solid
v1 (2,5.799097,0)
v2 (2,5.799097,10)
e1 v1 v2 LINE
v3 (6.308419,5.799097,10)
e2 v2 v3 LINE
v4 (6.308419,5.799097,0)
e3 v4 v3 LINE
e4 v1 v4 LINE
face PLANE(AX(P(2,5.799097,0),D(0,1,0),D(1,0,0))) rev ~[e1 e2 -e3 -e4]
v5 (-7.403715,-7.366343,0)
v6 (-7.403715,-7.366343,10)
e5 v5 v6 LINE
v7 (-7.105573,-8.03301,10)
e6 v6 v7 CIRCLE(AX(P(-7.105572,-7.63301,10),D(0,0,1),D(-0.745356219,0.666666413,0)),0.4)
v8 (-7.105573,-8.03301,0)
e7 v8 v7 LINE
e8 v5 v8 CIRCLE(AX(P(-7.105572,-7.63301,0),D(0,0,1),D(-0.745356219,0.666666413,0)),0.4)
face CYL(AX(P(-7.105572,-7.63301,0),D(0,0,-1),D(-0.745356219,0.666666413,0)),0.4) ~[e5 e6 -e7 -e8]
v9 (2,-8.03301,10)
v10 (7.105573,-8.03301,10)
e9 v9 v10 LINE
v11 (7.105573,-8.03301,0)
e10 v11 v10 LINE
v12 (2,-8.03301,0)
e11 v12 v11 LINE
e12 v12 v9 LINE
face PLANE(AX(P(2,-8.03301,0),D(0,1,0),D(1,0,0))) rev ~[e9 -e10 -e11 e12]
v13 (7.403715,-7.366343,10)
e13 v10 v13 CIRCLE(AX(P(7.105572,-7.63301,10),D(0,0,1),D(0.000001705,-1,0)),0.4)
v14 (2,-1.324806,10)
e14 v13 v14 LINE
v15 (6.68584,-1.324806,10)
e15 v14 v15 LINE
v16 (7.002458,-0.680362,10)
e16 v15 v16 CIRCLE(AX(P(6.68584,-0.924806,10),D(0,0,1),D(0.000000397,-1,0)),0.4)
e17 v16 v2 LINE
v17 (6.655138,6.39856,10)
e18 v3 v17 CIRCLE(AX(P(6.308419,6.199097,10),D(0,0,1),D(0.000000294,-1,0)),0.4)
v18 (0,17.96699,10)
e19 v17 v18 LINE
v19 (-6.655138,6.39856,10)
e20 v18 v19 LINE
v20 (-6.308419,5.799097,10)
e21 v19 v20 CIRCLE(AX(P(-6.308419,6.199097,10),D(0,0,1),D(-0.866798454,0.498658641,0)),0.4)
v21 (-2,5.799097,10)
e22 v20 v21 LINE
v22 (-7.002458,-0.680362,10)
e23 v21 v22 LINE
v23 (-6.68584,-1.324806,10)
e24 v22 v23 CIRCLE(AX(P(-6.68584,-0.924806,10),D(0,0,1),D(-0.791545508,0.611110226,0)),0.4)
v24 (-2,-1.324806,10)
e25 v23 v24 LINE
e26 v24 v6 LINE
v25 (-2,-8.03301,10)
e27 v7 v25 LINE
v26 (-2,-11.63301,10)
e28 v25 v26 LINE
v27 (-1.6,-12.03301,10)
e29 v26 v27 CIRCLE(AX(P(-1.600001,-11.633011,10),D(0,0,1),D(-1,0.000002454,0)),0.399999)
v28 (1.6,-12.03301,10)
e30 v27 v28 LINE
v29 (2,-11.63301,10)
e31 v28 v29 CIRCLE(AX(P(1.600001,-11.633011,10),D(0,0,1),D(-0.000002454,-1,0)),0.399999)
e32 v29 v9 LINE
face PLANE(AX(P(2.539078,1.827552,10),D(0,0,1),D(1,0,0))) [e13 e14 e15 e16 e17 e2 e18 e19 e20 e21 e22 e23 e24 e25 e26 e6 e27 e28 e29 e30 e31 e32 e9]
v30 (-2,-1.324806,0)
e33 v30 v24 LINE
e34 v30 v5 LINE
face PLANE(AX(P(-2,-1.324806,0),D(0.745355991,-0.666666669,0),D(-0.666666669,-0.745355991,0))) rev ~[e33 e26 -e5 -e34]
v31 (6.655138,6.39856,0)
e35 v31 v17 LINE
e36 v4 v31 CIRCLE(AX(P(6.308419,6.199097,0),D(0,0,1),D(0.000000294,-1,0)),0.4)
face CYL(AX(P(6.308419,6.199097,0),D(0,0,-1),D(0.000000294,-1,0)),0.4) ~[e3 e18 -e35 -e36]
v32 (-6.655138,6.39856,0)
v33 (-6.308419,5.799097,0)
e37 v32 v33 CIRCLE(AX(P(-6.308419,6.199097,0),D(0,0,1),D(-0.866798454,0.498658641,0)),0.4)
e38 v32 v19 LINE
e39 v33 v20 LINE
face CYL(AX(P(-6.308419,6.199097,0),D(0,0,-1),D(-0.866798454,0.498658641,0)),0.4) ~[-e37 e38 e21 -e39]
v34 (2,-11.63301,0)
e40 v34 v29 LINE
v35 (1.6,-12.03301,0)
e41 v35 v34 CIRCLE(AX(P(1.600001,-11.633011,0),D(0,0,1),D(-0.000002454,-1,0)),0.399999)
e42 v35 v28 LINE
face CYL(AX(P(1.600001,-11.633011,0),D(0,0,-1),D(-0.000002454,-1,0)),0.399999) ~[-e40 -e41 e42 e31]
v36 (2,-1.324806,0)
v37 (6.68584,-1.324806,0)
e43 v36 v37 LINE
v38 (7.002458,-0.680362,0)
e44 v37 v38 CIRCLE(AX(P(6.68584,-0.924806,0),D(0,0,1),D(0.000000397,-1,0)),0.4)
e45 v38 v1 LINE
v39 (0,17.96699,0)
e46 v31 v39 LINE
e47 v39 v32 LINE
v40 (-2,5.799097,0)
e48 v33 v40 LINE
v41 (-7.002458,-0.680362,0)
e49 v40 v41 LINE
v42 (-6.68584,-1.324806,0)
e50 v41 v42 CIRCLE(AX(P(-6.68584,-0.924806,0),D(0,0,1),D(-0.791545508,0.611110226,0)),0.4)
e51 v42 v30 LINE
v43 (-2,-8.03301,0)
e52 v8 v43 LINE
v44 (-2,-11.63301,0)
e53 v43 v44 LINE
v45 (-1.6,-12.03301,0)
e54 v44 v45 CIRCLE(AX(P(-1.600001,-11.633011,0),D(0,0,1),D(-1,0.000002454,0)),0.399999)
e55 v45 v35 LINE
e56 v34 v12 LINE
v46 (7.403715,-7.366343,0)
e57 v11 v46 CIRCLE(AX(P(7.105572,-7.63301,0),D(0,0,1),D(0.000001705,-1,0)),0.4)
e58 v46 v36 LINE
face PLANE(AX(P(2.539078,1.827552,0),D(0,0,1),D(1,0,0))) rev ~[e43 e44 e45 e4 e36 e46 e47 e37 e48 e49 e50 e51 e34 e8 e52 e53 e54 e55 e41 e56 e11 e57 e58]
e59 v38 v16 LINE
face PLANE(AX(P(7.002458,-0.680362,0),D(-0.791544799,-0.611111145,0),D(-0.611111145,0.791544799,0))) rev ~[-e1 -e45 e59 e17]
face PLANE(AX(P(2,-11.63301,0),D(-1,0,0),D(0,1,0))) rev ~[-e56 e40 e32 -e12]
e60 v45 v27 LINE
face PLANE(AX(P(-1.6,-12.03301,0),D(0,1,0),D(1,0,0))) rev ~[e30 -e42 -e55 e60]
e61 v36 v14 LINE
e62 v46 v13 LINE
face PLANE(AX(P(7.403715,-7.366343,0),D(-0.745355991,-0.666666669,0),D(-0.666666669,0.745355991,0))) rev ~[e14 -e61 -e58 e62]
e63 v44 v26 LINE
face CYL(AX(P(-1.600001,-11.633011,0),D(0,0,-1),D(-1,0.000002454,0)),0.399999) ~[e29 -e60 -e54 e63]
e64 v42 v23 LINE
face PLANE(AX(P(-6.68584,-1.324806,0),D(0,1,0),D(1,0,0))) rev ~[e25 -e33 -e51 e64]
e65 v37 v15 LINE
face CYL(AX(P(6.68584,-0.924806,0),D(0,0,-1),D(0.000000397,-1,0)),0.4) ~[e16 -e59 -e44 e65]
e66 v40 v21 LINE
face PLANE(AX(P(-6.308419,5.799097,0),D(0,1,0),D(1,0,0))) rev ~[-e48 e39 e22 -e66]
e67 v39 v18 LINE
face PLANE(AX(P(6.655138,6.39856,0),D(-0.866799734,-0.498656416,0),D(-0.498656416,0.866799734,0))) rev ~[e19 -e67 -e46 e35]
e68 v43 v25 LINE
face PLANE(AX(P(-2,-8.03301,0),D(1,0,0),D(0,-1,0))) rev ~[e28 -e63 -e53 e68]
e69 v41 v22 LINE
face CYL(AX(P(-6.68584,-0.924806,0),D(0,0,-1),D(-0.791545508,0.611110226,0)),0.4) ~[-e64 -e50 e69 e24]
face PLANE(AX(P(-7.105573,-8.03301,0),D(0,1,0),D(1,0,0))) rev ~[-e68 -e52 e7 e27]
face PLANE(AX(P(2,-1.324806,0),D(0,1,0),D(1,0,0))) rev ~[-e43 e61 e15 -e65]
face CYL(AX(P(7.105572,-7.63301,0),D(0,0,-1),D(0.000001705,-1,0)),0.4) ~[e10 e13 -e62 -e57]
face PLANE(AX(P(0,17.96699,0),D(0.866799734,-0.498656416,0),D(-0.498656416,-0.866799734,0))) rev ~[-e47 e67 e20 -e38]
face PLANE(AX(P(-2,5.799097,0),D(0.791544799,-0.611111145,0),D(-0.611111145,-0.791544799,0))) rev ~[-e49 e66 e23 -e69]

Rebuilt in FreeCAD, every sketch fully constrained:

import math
import FreeCAD as App
import Part
import Sketcher
from FreeCAD import Vector
Q = App.Units.Quantity

doc = App.newDocument("Part")
body = doc.addObject("PartDesign::Body", "Body")

# Sketch on XY plane
sketch1 = body.newObject("Sketcher::SketchObject", "Sketch")
sketch1.AttachmentSupport = (doc.getObject("XY_Plane"), [""])
sketch1.MapMode = "FlatFace"
sketch1.addGeometry(Part.LineSegment(Vector(6.66, 6.4, 0), Vector(0, 17.97, 0)), False)
sketch1.addGeometry(Part.LineSegment(Vector(0, 17.97, 0), Vector(-6.66, 6.4, 0)), False)
sketch1.addGeometry(Part.ArcOfCircle(Part.Circle(Vector(-6.31, 6.2, 0), Vector(0, 0, 1), 0.4), math.radians(150), math.radians(270)), False)
sketch1.addGeometry(Part.LineSegment(Vector(-6.31, 5.8, 0), Vector(-2, 5.8, 0)), False)
sketch1.addGeometry(Part.LineSegment(Vector(-2, 5.8, 0), Vector(-7, -0.68, 0)), False)
sketch1.addGeometry(Part.ArcOfCircle(Part.Circle(Vector(-6.69, -0.92, 0), Vector(0, 0, 1), 0.4), math.radians(142), math.radians(270)), False)
sketch1.addGeometry(Part.LineSegment(Vector(-6.69, -1.32, 0), Vector(-2, -1.32, 0)), False)
sketch1.addGeometry(Part.LineSegment(Vector(-2, -1.32, 0), Vector(-7.4, -7.37, 0)), False)
sketch1.addGeometry(Part.ArcOfCircle(Part.Circle(Vector(-7.11, -7.63, 0), Vector(0, 0, 1), 0.4), math.radians(138), math.radians(270)), False)
sketch1.addGeometry(Part.LineSegment(Vector(-7.11, -8.03, 0), Vector(-2, -8.03, 0)), False)
sketch1.addGeometry(Part.LineSegment(Vector(-2, -8.03, 0), Vector(-2, -11.63, 0)), False)
sketch1.addGeometry(Part.ArcOfCircle(Part.Circle(Vector(-1.6, -11.63, 0), Vector(0, 0, 1), 0.4), math.radians(180), math.radians(270)), False)
sketch1.addGeometry(Part.LineSegment(Vector(-1.6, -12.03, 0), Vector(1.6, -12.03, 0)), False)
sketch1.addGeometry(Part.ArcOfCircle(Part.Circle(Vector(1.6, -11.63, 0), Vector(0, 0, 1), 0.4), math.radians(-90), math.radians(0)), False)
sketch1.addGeometry(Part.LineSegment(Vector(2, -11.63, 0), Vector(2, -8.03, 0)), False)
sketch1.addGeometry(Part.LineSegment(Vector(2, -8.03, 0), Vector(7.11, -8.03, 0)), False)
sketch1.addGeometry(Part.ArcOfCircle(Part.Circle(Vector(7.11, -7.63, 0), Vector(0, 0, 1), 0.4), math.radians(-90), math.radians(42)), False)
sketch1.addGeometry(Part.LineSegment(Vector(7.4, -7.37, 0), Vector(2, -1.32, 0)), False)
sketch1.addGeometry(Part.LineSegment(Vector(2, -1.32, 0), Vector(6.69, -1.32, 0)), False)
sketch1.addGeometry(Part.ArcOfCircle(Part.Circle(Vector(6.69, -0.92, 0), Vector(0, 0, 1), 0.4), math.radians(-90), math.radians(38)), False)
sketch1.addGeometry(Part.LineSegment(Vector(7, -0.68, 0), Vector(2, 5.8, 0)), False)
sketch1.addGeometry(Part.LineSegment(Vector(2, 5.8, 0), Vector(6.31, 5.8, 0)), False)
sketch1.addGeometry(Part.ArcOfCircle(Part.Circle(Vector(6.31, 6.2, 0), Vector(0, 0, 1), 0.4), math.radians(-90), math.radians(30)), False)
sketch1.addConstraint(Sketcher.Constraint("Coincident", 0, 2, 1, 1))
sketch1.addConstraint(Sketcher.Constraint("Coincident", 1, 2, 2, 1))
sketch1.addConstraint(Sketcher.Constraint("Tangent", 2, 2, 3, 1))
sketch1.addConstraint(Sketcher.Constraint("Coincident", 3, 2, 4, 1))
sketch1.addConstraint(Sketcher.Constraint("Tangent", 4, 2, 5, 1))
sketch1.addConstraint(Sketcher.Constraint("Tangent", 5, 2, 6, 1))
sketch1.addConstraint(Sketcher.Constraint("Coincident", 6, 2, 7, 1))
sketch1.addConstraint(Sketcher.Constraint("Tangent", 7, 2, 8, 1))
sketch1.addConstraint(Sketcher.Constraint("Tangent", 8, 2, 9, 1))
sketch1.addConstraint(Sketcher.Constraint("Coincident", 9, 2, 10, 1))
sketch1.addConstraint(Sketcher.Constraint("Coincident", 10, 2, 11, 1))
sketch1.addConstraint(Sketcher.Constraint("Coincident", 11, 2, 12, 1))
sketch1.addConstraint(Sketcher.Constraint("Coincident", 12, 2, 13, 1))
sketch1.addConstraint(Sketcher.Constraint("Coincident", 13, 2, 14, 1))
sketch1.addConstraint(Sketcher.Constraint("Coincident", 14, 2, 15, 1))
sketch1.addConstraint(Sketcher.Constraint("Tangent", 15, 2, 16, 1))
sketch1.addConstraint(Sketcher.Constraint("Tangent", 16, 2, 17, 1))
sketch1.addConstraint(Sketcher.Constraint("Coincident", 17, 2, 18, 1))
sketch1.addConstraint(Sketcher.Constraint("Tangent", 18, 2, 19, 1))
sketch1.addConstraint(Sketcher.Constraint("Tangent", 19, 2, 20, 1))
sketch1.addConstraint(Sketcher.Constraint("Coincident", 20, 2, 21, 1))
sketch1.addConstraint(Sketcher.Constraint("Tangent", 21, 2, 22, 1))
sketch1.addConstraint(Sketcher.Constraint("Coincident", 22, 2, 0, 1))
sketch1.addConstraint(Sketcher.Constraint("Horizontal", 3))
sketch1.addConstraint(Sketcher.Constraint("Horizontal", 6))
sketch1.addConstraint(Sketcher.Constraint("Horizontal", 9))
sketch1.addConstraint(Sketcher.Constraint("Vertical", 10))
sketch1.addConstraint(Sketcher.Constraint("Horizontal", 12))
sketch1.addConstraint(Sketcher.Constraint("Vertical", 14))
sketch1.addConstraint(Sketcher.Constraint("Horizontal", 15))
sketch1.addConstraint(Sketcher.Constraint("Horizontal", 18))
sketch1.addConstraint(Sketcher.Constraint("Horizontal", 21))
sketch1.addConstraint(Sketcher.Constraint("Equal", 2, 5))
sketch1.addConstraint(Sketcher.Constraint("Equal", 5, 8))
sketch1.addConstraint(Sketcher.Constraint("Equal", 8, 11))
sketch1.addConstraint(Sketcher.Constraint("Equal", 11, 13))
sketch1.addConstraint(Sketcher.Constraint("Equal", 13, 16))
sketch1.addConstraint(Sketcher.Constraint("Equal", 16, 19))
sketch1.addConstraint(Sketcher.Constraint("Equal", 19, 22))
sketch1.addConstraint(Sketcher.Constraint("Symmetric", 8, 3, 16, 3, -2))
sketch1.addConstraint(Sketcher.Constraint("Symmetric", 5, 3, 19, 3, -2))
sketch1.addConstraint(Sketcher.Constraint("Symmetric", 2, 3, 22, 3, -2))
sketch1.addConstraint(Sketcher.Constraint("Symmetric", 10, 2, 13, 2, -2))
sketch1.addConstraint(Sketcher.Constraint("PointOnObject", 0, 2, -2))
sketch1.addConstraint(Sketcher.Constraint("Horizontal", 13, 3, 10, 2))
sketch1.addConstraint(Sketcher.Constraint("Horizontal", 7, 2, 16, 2))
sketch1.addConstraint(Sketcher.Constraint("Horizontal", 4, 2, 19, 2))
sketch1.addConstraint(Sketcher.Constraint("Horizontal", 1, 2, 22, 2))
sketch1.addConstraint(Sketcher.Constraint("Vertical", 3, 2, 6, 2))
sketch1.addConstraint(Sketcher.Constraint("Vertical", 6, 2, 9, 2))
sketch1.addConstraint(Sketcher.Constraint("Vertical", 13, 3, 12, 2))
sketch1.addConstraint(Sketcher.Constraint("Radius", 2, Q("0.4 mm")))
sketch1.addConstraint(Sketcher.Constraint("DistanceX", 12, 1, 12, 2, Q("3.2 mm")))
sketch1.addConstraint(Sketcher.Constraint("DistanceY", 10, 2, 10, 1, Q("3.6 mm")))
sketch1.addConstraint(Sketcher.Constraint("DistanceX", 3, 2, -1, 1, Q("2 mm")))
sketch1.addConstraint(Sketcher.Constraint("DistanceY", 8, 3, 0, 2, Q("25.6 mm")))
sketch1.addConstraint(Sketcher.Constraint("DistanceX", 3, 1, 3, 2, Q("4.308419 mm")))
sketch1.addConstraint(Sketcher.Constraint("DistanceX", 6, 1, 6, 2, Q("4.68584 mm")))
sketch1.addConstraint(Sketcher.Constraint("DistanceX", 5, 3, 1, 2, Q("0.030702 mm")))
sketch1.addConstraint(Sketcher.Constraint("Distance", 0, Q("13.346139 mm")))
sketch1.addConstraint(Sketcher.Constraint("Distance", 4, Q("8.18584 mm")))
sketch1.addConstraint(Sketcher.Constraint("DistanceX", 9, 1, 9, 2, Q("5.105573 mm")))
sketch1.addConstraint(Sketcher.Constraint("DistanceY", 8, 3, -1, 1, Q("7.63301 mm")))
pad1 = body.newObject("PartDesign::Pad", "Pad")
pad1.Profile = sketch1
pad1.Length = 10

doc.recompute()
